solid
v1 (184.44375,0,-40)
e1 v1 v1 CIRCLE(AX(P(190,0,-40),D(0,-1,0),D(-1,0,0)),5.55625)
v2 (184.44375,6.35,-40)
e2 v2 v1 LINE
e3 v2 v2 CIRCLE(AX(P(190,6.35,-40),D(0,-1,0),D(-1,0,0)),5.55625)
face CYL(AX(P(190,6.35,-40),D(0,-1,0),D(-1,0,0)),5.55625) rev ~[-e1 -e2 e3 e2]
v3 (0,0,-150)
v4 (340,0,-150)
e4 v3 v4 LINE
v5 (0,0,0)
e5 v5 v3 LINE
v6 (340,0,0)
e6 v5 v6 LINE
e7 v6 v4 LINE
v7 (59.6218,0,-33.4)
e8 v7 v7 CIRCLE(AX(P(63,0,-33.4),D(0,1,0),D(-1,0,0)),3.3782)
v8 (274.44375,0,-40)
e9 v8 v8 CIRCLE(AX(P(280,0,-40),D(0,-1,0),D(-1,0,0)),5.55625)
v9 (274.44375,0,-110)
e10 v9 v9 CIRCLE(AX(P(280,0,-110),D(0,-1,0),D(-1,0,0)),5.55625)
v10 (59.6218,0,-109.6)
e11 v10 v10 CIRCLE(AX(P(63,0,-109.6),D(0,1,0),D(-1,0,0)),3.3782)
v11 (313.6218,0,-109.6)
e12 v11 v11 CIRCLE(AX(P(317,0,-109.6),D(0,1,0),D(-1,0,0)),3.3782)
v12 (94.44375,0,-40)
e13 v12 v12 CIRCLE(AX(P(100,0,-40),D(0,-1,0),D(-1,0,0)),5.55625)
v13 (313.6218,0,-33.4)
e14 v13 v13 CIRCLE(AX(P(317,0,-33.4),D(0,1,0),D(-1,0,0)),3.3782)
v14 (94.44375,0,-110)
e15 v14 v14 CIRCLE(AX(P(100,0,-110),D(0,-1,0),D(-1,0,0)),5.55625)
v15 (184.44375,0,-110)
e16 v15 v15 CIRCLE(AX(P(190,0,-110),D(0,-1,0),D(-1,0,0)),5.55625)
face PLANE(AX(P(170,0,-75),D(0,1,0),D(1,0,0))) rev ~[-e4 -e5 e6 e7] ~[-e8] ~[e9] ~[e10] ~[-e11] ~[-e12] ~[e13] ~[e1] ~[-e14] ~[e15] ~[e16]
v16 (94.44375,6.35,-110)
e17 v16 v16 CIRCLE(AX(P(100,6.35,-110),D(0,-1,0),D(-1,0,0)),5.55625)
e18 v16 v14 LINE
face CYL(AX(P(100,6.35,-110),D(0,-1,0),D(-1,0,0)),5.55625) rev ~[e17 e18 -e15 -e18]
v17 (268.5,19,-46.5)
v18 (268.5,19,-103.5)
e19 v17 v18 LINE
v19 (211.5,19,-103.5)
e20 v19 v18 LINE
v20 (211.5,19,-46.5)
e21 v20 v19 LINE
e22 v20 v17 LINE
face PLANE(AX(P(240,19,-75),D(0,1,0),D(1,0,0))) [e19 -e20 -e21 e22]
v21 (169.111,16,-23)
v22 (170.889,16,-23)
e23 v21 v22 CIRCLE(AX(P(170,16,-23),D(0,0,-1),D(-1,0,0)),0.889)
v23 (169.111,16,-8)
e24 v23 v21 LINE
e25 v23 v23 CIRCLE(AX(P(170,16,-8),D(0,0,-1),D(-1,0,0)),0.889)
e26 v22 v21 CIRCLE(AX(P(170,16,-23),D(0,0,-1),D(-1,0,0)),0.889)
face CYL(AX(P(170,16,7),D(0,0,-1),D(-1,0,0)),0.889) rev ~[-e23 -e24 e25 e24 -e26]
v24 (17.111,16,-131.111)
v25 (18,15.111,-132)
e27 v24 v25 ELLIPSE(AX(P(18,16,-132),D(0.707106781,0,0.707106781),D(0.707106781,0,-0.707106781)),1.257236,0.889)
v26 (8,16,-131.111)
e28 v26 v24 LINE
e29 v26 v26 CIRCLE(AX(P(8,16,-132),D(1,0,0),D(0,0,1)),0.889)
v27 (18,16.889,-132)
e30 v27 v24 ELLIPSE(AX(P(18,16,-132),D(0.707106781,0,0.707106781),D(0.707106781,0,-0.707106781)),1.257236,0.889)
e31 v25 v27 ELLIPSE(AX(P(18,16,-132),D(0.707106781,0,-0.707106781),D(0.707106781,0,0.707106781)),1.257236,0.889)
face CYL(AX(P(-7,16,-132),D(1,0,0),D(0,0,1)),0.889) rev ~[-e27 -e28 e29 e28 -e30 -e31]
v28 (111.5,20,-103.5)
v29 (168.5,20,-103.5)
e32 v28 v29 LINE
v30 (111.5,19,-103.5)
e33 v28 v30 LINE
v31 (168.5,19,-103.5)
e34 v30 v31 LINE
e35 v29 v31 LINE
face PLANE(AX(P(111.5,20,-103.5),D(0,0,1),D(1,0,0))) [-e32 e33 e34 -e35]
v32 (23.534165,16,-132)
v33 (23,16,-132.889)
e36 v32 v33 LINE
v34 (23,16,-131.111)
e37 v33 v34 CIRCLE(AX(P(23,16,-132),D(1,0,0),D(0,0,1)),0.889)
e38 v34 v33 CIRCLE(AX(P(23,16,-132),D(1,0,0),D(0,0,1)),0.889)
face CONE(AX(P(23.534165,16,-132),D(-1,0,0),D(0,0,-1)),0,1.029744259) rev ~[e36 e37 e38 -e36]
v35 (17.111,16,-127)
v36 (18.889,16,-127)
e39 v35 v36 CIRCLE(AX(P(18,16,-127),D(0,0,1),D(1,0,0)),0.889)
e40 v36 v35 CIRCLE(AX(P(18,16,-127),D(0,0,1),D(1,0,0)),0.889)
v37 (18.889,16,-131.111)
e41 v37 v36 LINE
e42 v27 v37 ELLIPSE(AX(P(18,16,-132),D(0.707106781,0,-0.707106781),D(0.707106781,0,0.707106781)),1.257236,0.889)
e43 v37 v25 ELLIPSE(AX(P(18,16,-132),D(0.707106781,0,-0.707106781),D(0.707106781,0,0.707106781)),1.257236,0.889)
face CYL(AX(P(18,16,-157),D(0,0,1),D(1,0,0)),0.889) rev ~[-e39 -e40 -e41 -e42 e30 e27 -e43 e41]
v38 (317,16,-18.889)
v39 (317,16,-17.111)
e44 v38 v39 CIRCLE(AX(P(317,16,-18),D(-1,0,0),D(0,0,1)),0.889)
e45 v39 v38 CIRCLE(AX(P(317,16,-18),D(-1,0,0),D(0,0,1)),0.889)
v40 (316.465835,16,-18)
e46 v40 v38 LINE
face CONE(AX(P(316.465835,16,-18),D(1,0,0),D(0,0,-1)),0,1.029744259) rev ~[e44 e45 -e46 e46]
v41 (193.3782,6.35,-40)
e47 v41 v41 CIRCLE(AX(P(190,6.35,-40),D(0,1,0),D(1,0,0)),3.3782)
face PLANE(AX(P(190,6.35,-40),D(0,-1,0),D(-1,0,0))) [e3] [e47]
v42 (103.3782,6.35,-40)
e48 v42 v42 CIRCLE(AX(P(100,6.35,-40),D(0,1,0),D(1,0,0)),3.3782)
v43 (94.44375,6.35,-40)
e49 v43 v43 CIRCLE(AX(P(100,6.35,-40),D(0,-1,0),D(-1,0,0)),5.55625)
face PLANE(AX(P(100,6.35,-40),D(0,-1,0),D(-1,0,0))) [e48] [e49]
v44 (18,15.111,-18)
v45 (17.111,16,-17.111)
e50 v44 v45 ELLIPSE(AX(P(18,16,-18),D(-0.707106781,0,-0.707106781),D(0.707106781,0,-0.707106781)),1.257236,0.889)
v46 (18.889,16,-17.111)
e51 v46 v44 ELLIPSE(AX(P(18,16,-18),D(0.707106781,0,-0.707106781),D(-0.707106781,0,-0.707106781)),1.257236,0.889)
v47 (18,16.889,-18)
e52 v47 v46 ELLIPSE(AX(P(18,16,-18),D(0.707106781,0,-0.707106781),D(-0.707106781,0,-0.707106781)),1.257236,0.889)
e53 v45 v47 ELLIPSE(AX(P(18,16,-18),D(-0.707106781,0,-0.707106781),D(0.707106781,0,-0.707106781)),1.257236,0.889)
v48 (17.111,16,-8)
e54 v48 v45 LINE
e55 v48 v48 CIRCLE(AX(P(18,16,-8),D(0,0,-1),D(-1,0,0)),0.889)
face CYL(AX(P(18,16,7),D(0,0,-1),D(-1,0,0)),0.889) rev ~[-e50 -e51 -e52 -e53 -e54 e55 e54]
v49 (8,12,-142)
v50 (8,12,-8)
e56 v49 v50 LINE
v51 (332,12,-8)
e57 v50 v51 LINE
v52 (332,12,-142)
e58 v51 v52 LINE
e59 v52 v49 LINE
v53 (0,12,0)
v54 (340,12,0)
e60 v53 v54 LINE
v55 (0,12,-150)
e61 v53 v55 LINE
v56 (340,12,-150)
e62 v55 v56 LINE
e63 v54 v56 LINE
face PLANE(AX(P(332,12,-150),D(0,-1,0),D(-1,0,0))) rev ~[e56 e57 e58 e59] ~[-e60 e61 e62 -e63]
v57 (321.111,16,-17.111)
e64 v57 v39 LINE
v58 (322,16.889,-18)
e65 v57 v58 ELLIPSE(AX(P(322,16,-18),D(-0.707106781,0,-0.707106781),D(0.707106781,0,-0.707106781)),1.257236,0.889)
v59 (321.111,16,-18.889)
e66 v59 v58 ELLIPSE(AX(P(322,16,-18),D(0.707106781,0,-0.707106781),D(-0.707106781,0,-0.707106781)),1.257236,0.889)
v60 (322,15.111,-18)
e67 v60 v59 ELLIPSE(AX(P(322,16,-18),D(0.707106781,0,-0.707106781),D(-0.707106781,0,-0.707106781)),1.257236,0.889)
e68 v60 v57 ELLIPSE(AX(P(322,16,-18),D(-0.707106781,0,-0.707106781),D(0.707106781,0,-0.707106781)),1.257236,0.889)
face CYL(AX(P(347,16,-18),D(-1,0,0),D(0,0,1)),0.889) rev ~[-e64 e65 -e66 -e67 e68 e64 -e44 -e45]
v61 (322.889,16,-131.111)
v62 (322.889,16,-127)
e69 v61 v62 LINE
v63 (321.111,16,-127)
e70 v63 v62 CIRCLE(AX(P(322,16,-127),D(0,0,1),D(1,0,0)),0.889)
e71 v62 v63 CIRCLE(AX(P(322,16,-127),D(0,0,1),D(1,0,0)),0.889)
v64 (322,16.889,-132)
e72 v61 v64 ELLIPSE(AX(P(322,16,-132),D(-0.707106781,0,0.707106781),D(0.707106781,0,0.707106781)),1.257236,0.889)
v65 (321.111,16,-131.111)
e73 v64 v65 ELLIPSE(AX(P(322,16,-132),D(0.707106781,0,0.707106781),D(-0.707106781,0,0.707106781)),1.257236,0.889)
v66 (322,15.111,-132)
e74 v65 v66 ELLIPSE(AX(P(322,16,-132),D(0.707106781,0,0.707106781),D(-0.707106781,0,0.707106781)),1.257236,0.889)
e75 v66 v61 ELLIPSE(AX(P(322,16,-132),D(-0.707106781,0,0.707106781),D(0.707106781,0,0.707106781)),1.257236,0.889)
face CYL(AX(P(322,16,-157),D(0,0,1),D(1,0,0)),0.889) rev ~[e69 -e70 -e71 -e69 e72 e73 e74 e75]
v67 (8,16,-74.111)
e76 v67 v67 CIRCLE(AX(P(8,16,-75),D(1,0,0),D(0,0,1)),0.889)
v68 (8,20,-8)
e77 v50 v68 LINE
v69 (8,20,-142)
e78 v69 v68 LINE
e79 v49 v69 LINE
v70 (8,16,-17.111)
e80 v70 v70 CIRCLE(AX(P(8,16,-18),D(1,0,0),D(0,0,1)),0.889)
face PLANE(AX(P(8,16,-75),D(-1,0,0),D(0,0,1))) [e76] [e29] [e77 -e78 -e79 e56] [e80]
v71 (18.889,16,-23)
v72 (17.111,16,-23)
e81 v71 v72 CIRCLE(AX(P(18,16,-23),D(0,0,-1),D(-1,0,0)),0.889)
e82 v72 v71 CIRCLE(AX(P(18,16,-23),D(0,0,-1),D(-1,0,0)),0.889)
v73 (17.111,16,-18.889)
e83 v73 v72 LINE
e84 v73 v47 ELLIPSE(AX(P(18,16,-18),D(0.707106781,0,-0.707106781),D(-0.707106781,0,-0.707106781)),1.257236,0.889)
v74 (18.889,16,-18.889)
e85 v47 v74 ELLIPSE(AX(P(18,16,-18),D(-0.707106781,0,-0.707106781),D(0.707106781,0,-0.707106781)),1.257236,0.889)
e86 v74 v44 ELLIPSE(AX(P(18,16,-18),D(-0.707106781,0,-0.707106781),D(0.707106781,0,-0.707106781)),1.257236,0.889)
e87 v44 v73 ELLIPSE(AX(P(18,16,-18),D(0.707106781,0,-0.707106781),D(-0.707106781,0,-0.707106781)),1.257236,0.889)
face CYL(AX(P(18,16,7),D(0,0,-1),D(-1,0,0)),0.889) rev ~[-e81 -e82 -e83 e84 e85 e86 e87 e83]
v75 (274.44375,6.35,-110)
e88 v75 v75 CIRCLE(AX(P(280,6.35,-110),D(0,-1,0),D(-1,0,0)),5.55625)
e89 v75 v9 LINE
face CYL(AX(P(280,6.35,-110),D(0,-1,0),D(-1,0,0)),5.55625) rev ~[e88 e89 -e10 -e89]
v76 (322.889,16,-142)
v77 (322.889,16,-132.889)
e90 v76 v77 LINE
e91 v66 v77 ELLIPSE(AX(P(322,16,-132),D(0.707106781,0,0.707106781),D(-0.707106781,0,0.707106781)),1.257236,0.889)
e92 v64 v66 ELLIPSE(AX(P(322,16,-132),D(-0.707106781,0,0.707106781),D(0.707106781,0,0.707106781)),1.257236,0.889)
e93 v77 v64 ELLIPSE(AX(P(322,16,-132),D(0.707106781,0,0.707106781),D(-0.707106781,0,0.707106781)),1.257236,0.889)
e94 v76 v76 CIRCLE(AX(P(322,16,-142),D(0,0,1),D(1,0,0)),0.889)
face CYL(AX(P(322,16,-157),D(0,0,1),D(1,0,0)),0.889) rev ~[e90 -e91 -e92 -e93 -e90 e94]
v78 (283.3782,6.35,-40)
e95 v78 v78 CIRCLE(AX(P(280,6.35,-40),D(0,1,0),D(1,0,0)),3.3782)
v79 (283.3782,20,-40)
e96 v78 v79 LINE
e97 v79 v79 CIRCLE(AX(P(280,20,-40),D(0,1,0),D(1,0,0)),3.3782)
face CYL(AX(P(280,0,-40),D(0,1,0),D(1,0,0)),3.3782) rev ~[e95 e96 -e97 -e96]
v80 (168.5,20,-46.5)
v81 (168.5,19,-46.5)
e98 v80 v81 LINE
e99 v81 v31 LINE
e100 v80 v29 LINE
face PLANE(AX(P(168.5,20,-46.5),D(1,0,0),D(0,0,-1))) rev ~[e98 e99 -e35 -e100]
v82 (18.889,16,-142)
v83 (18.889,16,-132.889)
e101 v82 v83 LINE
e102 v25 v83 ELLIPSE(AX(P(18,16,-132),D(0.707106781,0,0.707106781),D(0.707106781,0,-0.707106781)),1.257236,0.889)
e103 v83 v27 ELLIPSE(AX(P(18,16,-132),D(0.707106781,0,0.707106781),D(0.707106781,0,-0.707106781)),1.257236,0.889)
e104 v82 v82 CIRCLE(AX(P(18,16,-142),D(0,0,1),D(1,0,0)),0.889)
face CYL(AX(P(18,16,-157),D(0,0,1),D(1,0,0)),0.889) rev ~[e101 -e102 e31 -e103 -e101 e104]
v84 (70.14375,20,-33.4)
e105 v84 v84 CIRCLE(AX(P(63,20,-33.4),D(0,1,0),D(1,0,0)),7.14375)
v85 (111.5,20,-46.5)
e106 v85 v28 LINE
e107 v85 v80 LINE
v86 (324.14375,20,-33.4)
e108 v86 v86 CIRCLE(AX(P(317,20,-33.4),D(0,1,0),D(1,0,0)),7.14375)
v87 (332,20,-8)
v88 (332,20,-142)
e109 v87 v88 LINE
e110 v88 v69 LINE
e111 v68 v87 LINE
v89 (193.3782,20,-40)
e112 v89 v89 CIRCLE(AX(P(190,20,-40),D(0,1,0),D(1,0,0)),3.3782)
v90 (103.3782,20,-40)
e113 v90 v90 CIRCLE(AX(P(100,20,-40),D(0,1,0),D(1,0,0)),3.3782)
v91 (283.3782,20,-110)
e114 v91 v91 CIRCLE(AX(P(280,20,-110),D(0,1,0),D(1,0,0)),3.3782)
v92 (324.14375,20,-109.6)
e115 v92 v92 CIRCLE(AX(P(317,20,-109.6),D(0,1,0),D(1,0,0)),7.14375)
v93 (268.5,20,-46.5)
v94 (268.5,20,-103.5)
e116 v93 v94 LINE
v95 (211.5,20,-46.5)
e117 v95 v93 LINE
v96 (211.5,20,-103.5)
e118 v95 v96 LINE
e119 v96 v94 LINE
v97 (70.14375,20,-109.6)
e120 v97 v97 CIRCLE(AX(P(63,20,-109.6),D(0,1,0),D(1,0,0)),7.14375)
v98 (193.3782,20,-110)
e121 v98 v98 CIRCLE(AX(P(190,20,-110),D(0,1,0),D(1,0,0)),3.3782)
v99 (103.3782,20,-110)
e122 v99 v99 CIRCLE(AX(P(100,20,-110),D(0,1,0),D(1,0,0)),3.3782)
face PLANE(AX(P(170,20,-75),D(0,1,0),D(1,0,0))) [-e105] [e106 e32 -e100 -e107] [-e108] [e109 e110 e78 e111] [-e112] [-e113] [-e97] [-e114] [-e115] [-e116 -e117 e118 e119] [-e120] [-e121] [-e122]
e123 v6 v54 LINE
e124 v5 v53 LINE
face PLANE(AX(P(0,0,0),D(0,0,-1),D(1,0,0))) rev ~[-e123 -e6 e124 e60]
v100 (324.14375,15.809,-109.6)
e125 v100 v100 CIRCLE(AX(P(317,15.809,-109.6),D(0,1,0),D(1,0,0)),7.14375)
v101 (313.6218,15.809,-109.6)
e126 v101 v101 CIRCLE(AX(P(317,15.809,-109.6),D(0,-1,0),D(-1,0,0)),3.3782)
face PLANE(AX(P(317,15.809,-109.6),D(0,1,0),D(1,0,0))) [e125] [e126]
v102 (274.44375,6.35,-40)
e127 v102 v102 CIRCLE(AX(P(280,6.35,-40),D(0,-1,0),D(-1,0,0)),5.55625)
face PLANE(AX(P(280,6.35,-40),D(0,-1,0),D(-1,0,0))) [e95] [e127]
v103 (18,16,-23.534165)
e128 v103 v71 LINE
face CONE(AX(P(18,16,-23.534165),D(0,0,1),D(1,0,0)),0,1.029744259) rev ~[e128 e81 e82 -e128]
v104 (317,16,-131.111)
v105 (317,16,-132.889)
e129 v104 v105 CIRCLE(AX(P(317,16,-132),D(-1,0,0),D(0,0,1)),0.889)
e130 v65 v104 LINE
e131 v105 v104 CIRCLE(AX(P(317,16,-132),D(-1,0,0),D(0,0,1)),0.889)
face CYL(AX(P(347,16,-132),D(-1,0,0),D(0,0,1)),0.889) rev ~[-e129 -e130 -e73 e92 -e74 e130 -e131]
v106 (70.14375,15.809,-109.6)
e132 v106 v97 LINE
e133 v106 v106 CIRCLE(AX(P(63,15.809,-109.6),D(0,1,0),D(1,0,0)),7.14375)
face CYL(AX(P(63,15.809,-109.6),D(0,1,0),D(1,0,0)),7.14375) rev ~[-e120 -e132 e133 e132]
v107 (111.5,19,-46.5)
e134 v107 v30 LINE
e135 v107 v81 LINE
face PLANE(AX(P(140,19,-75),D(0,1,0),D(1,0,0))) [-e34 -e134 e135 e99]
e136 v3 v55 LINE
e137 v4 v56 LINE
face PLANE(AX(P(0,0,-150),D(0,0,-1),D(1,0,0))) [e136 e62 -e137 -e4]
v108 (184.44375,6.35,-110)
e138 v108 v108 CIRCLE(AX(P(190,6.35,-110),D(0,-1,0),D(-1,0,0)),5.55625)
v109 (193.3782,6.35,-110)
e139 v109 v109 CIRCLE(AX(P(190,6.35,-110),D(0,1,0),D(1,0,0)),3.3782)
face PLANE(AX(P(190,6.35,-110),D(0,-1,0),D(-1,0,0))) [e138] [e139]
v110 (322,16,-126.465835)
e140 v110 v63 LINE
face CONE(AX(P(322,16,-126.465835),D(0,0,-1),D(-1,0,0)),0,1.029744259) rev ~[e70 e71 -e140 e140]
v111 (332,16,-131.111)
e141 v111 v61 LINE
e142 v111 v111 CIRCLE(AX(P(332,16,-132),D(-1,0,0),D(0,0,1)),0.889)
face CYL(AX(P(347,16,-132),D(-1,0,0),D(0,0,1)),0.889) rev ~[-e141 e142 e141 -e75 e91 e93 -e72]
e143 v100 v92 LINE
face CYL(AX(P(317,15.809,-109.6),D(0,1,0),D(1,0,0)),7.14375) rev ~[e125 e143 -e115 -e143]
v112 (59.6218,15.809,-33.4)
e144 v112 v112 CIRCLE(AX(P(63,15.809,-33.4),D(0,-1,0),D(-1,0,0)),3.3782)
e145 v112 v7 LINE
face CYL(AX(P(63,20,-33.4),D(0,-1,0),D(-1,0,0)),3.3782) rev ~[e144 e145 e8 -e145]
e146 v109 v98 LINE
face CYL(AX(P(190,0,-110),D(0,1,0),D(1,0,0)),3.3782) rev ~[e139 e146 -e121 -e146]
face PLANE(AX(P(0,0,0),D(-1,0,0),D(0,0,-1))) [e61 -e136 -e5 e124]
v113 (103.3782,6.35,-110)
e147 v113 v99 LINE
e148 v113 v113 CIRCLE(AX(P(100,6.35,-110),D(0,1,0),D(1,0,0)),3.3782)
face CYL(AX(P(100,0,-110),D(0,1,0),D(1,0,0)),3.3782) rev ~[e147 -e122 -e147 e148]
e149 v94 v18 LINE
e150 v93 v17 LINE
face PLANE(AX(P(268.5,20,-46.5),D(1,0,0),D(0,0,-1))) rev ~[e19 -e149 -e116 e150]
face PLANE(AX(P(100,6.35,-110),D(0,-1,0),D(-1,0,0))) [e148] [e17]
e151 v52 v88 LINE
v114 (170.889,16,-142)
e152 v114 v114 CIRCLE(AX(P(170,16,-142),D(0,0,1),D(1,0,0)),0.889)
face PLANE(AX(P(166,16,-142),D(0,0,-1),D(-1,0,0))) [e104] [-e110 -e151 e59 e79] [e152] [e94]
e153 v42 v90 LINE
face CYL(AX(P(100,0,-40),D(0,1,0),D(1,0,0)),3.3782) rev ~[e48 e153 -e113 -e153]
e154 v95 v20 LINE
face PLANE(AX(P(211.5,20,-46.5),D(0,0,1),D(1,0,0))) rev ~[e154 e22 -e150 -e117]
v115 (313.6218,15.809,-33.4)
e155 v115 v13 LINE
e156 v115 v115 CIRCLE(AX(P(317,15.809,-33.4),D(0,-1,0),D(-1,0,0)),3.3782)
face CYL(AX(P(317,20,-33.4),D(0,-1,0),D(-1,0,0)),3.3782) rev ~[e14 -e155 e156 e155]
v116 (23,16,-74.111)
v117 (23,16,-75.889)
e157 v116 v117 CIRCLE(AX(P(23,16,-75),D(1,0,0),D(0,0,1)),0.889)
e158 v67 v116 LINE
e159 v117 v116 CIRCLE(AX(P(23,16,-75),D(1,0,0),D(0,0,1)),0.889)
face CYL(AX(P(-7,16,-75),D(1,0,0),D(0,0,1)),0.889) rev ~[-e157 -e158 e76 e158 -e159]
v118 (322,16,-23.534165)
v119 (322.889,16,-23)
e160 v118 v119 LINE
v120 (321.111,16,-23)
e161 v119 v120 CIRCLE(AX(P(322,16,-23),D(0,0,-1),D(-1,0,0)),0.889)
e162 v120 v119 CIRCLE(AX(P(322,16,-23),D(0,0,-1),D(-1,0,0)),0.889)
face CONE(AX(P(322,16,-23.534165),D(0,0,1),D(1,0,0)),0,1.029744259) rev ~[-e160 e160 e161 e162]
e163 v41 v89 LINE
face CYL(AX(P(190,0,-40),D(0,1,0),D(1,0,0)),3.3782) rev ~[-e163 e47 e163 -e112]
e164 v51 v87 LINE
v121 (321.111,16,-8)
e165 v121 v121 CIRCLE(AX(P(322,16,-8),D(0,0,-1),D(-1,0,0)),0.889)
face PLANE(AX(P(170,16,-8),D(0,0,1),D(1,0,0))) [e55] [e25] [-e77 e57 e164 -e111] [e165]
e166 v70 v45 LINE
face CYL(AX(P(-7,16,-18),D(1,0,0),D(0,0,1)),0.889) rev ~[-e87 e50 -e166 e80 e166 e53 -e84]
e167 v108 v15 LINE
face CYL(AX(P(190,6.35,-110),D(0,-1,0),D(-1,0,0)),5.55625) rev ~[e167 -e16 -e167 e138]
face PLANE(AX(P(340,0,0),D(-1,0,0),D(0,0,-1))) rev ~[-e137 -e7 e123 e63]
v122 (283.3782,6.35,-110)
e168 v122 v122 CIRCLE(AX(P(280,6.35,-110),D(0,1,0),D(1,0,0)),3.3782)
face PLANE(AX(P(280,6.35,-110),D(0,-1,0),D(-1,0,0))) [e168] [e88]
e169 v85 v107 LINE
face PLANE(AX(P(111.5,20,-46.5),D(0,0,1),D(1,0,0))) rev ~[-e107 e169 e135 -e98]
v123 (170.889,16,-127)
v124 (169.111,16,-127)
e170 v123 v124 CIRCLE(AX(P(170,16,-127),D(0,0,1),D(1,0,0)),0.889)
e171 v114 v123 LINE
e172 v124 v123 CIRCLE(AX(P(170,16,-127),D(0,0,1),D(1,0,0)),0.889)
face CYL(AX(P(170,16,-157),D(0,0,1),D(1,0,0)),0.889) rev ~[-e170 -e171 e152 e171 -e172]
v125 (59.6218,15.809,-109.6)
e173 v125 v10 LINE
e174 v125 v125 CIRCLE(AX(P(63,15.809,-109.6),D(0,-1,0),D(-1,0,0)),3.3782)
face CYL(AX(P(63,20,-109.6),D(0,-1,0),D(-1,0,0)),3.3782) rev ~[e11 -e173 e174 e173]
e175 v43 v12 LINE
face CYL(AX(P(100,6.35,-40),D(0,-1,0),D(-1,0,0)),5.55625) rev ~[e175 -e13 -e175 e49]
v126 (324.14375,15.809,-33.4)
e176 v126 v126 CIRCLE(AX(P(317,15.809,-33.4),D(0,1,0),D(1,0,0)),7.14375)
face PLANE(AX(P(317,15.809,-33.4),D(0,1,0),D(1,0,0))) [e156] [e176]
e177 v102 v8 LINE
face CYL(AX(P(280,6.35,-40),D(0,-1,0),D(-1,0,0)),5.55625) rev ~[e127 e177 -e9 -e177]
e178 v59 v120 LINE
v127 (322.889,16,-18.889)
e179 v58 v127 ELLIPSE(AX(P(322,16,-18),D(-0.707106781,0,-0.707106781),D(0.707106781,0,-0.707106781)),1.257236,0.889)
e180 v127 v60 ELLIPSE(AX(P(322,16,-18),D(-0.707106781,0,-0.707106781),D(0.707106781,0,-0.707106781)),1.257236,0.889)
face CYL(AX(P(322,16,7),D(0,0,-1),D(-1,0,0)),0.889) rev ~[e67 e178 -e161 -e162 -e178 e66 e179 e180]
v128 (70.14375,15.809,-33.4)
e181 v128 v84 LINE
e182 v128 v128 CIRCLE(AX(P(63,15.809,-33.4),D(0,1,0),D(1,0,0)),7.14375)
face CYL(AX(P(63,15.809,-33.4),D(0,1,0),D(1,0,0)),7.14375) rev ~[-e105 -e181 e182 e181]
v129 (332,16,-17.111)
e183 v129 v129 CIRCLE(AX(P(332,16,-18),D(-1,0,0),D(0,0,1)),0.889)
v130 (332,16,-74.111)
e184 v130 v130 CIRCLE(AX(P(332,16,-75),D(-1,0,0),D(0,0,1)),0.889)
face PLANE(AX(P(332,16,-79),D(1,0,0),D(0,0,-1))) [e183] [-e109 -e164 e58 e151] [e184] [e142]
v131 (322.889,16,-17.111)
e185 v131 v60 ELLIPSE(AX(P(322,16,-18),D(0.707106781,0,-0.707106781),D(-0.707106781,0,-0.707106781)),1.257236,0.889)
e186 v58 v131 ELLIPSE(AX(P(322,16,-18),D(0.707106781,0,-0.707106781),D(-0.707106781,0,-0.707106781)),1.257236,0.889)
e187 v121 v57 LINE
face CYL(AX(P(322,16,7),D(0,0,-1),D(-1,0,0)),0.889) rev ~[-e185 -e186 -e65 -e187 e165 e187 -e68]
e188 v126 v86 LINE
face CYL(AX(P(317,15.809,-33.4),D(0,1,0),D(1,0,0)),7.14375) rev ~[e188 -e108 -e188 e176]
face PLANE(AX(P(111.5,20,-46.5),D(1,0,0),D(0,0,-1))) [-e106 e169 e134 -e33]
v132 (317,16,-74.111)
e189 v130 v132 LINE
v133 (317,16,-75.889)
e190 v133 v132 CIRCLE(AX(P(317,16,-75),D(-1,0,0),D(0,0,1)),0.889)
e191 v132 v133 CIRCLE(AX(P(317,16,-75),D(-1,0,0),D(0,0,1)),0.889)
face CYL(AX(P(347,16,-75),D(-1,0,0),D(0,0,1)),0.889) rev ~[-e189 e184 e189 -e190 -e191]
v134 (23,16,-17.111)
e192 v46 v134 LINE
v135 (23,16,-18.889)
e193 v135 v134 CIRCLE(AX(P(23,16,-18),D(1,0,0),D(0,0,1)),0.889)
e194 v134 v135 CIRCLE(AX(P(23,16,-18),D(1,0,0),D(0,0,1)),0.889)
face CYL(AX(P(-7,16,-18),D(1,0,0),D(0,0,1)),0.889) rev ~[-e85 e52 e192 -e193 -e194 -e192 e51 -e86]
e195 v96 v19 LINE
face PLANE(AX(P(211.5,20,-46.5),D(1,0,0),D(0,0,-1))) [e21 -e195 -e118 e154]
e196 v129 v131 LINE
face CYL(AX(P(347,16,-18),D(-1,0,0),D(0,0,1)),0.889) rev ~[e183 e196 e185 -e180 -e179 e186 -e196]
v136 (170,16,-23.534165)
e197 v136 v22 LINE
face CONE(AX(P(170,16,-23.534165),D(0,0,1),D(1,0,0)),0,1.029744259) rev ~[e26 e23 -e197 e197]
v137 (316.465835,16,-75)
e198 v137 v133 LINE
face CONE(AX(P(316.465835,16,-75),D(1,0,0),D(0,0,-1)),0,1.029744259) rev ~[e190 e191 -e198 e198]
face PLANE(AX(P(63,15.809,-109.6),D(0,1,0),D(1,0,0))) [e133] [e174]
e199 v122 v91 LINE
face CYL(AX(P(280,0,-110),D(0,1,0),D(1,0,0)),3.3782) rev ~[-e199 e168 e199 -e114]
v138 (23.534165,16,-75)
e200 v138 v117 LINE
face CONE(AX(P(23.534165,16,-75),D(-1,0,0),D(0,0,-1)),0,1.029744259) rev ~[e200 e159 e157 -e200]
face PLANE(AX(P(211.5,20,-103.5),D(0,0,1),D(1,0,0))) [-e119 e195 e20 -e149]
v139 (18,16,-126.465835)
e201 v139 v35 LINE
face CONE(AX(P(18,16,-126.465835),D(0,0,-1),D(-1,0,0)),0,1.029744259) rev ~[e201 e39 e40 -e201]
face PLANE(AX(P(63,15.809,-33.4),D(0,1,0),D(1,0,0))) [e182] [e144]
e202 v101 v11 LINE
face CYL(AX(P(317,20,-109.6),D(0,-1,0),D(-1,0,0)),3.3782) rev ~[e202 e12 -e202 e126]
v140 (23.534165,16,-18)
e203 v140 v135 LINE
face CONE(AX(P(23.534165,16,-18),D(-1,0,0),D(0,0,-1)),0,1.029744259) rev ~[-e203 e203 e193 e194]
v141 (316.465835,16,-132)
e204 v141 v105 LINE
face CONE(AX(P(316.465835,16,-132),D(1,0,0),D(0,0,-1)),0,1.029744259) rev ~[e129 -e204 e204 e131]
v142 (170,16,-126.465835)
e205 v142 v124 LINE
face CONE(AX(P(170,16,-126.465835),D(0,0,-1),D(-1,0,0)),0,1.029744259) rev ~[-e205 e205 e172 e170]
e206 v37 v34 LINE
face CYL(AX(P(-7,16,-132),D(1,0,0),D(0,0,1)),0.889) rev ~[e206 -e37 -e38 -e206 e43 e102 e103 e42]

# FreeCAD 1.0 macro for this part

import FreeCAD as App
import Part
import Sketcher
Q = App.Units.Quantity

doc = App.newDocument("Part")
body = doc.addObject("PartDesign::Body", "Body")

# Sketch on XZ plane
sketch1 = body.newObject("Sketcher::SketchObject", "Sketch")
sketch1.AttachmentSupport = (doc.getObject("XZ_Plane"), [""])
sketch1.MapMode = "FlatFace"
sketch1.addGeometry(Part.LineSegment(App.Vector(0, -150, 0), App.Vector(0, 0, 0)), False)
sketch1.addGeometry(Part.LineSegment(App.Vector(0, 0, 0), App.Vector(340, 0, 0)), False)
sketch1.addGeometry(Part.LineSegment(App.Vector(340, 0, 0), App.Vector(340, -150, 0)), False)
sketch1.addGeometry(Part.LineSegment(App.Vector(340, -150, 0), App.Vector(0, -150, 0)), False)
sketch1.addConstraint(Sketcher.Constraint("Coincident", 0, 2, 1, 1))
sketch1.addConstraint(Sketcher.Constraint("Coincident", 1, 2, 2, 1))
sketch1.addConstraint(Sketcher.Constraint("Coincident", 2, 2, 3, 1))
sketch1.addConstraint(Sketcher.Constraint("Coincident", 3, 2, 0, 1))
sketch1.addConstraint(Sketcher.Constraint("Vertical", 0))
sketch1.addConstraint(Sketcher.Constraint("Horizontal", 1))
sketch1.addConstraint(Sketcher.Constraint("Vertical", 2))
sketch1.addConstraint(Sketcher.Constraint("Horizontal", 3))
sketch1.addConstraint(Sketcher.Constraint("Coincident", 0, 2, -1, 1))
sketch1.addConstraint(Sketcher.Constraint("DistanceX", 1, 1, 1, 2, Q("340 mm")))
sketch1.addConstraint(Sketcher.Constraint("DistanceY", 0, 1, 0, 2, Q("150 mm")))
pad1 = body.newObject("PartDesign::Pad", "Pad")
pad1.Profile = sketch1
pad1.Length = 20
pad1.Reversed = True

# Sketch on XZ plane
sketch2 = body.newObject("Sketcher::SketchObject", "Sketch001")
sketch2.AttachmentSupport = (doc.getObject("XZ_Plane"), [""])
sketch2.MapMode = "FlatFace"
sketch2.addGeometry(Part.Circle(App.Vector(100, -40, 0), App.Vector(0, 0, 1), 3.3782), False)
sketch2.addGeometry(Part.Circle(App.Vector(190, -40, 0), App.Vector(0, 0, 1), 3.3782), False)
sketch2.addGeometry(Part.Circle(App.Vector(280, -40, 0), App.Vector(0, 0, 1), 3.3782), False)
sketch2.addGeometry(Part.Circle(App.Vector(280, -110, 0), App.Vector(0, 0, 1), 3.3782), False)
sketch2.addGeometry(Part.Circle(App.Vector(190, -110, 0), App.Vector(0, 0, 1), 3.3782), False)
sketch2.addGeometry(Part.Circle(App.Vector(100, -110, 0), App.Vector(0, 0, 1), 3.3782), False)
sketch2.addConstraint(Sketcher.Constraint("Equal", 0, 1))
sketch2.addConstraint(Sketcher.Constraint("Equal", 1, 2))
sketch2.addConstraint(Sketcher.Constraint("Equal", 2, 3))
sketch2.addConstraint(Sketcher.Constraint("Equal", 3, 4))
sketch2.addConstraint(Sketcher.Constraint("Equal", 4, 5))
sketch2.addConstraint(Sketcher.Constraint("Horizontal", 0, 3, 1, 3))
sketch2.addConstraint(Sketcher.Constraint("Horizontal", 1, 3, 2, 3))
sketch2.addConstraint(Sketcher.Constraint("Horizontal", 3, 3, 4, 3))
sketch2.addConstraint(Sketcher.Constraint("Horizontal", 4, 3, 5, 3))
sketch2.addConstraint(Sketcher.Constraint("Vertical", 2, 3, 3, 3))
sketch2.addConstraint(Sketcher.Constraint("Vertical", 1, 3, 4, 3))
sketch2.addConstraint(Sketcher.Constraint("Vertical", 0, 3, 5, 3))
sketch2.addConstraint(Sketcher.Constraint("DistanceX", -1, 1, 0, 3, Q("100 mm")))
sketch2.addConstraint(Sketcher.Constraint("DistanceY", 0, 3, -1, 1, Q("40 mm")))
sketch2.addConstraint(Sketcher.Constraint("DistanceX", -1, 1, 1, 3, Q("190 mm")))
sketch2.addConstraint(Sketcher.Constraint("DistanceX", -1, 1, 2, 3, Q("280 mm")))
sketch2.addConstraint(Sketcher.Constraint("DistanceY", 3, 3, -1, 1, Q("110 mm")))
sketch2.addConstraint(Sketcher.Constraint("Diameter", 0, Q("6.7564 mm")))
doc.recompute()
hole = body.newObject("PartDesign::Hole", "Hole")
hole.Profile = sketch2
hole.ThreadType = "None"
hole.Diameter = 6.7564
hole.DepthType = "ThroughAll"
hole.HoleCutType = "Counterbore"
hole.HoleCutDiameter = 11.1125
hole.HoleCutDepth = 6.35

# Sketch on XZ plane
sketch3 = body.newObject("Sketcher::SketchObject", "Sketch002")
sketch3.AttachmentSupport = (doc.getObject("XZ_Plane"), [""])
sketch3.MapMode = "FlatFace"
sketch3.AttachmentOffset = App.Placement(App.Vector(0, 0, -20), App.Rotation())
sketch3.addGeometry(Part.LineSegment(App.Vector(111.5, -103.5, 0), App.Vector(111.5, -46.5, 0)), False)
sketch3.addGeometry(Part.LineSegment(App.Vector(111.5, -46.5, 0), App.Vector(168.5, -46.5, 0)), False)
sketch3.addGeometry(Part.LineSegment(App.Vector(168.5, -46.5, 0), App.Vector(168.5, -103.5, 0)), False)
sketch3.addGeometry(Part.LineSegment(App.Vector(168.5, -103.5, 0), App.Vector(111.5, -103.5, 0)), False)
sketch3.addGeometry(Part.LineSegment(App.Vector(211.5, -103.5, 0), App.Vector(211.5, -46.5, 0)), False)
sketch3.addGeometry(Part.LineSegment(App.Vector(211.5, -46.5, 0), App.Vector(268.5, -46.5, 0)), False)
sketch3.addGeometry(Part.LineSegment(App.Vector(268.5, -46.5, 0), App.Vector(268.5, -103.5, 0)), False)
sketch3.addGeometry(Part.LineSegment(App.Vector(268.5, -103.5, 0), App.Vector(211.5, -103.5, 0)), False)
sketch3.addConstraint(Sketcher.Constraint("Coincident", 0, 2, 1, 1))
sketch3.addConstraint(Sketcher.Constraint("Coincident", 1, 2, 2, 1))
sketch3.addConstraint(Sketcher.Constraint("Coincident", 2, 2, 3, 1))
sketch3.addConstraint(Sketcher.Constraint("Coincident", 3, 2, 0, 1))
sketch3.addConstraint(Sketcher.Constraint("Coincident", 4, 2, 5, 1))
sketch3.addConstraint(Sketcher.Constraint("Coincident", 5, 2, 6, 1))
sketch3.addConstraint(Sketcher.Constraint("Coincident", 6, 2, 7, 1))
sketch3.addConstraint(Sketcher.Constraint("Coincident", 7, 2, 4, 1))
sketch3.addConstraint(Sketcher.Constraint("Vertical", 0))
sketch3.addConstraint(Sketcher.Constraint("Horizontal", 1))
sketch3.addConstraint(Sketcher.Constraint("Vertical", 2))
sketch3.addConstraint(Sketcher.Constraint("Horizontal", 3))
sketch3.addConstraint(Sketcher.Constraint("Vertical", 4))
sketch3.addConstraint(Sketcher.Constraint("Horizontal", 5))
sketch3.addConstraint(Sketcher.Constraint("Vertical", 6))
sketch3.addConstraint(Sketcher.Constraint("Horizontal", 7))
sketch3.addConstraint(Sketcher.Constraint("Horizontal", 1, 2, 4, 2))
sketch3.addConstraint(Sketcher.Constraint("Horizontal", 3, 2, 6, 2))
sketch3.addConstraint(Sketcher.Constraint("Equal", 3, 5))
sketch3.addConstraint(Sketcher.Constraint("Equal", 7, 0))
sketch3.addConstraint(Sketcher.Constraint("DistanceX", 1, 1, 1, 2, Q("57 mm")))
sketch3.addConstraint(Sketcher.Constraint("DistanceX", 1, 2, 4, 2, Q("43 mm")))
sketch3.addConstraint(Sketcher.Constraint("DistanceX", -1, 1, 0, 2, Q("111.5 mm")))
sketch3.addConstraint(Sketcher.Constraint("DistanceY", 0, 2, -1, 1, Q("46.5 mm")))
pocket1 = body.newObject("PartDesign::Pocket", "Pocket")
pocket1.Profile = sketch3
pocket1.Length = 1
pocket1.Reversed = True

# Sketch on XY plane
sketch4 = body.newObject("Sketcher::SketchObject", "Sketch003")
sketch4.AttachmentSupport = (doc.getObject("XY_Plane"), [""])
sketch4.MapMode = "FlatFace"
sketch4.addGeometry(Part.LineSegment(App.Vector(0, 20, 0), App.Vector(0, 12, 0)), False)
sketch4.addGeometry(Part.LineSegment(App.Vector(0, 12, 0), App.Vector(340, 12, 0)), False)
sketch4.addGeometry(Part.LineSegment(App.Vector(340, 12, 0), App.Vector(340, 20, 0)), False)
sketch4.addGeometry(Part.LineSegment(App.Vector(340, 20, 0), App.Vector(0, 20, 0)), False)
sketch4.addConstraint(Sketcher.Constraint("Coincident", 0, 2, 1, 1))
sketch4.addConstraint(Sketcher.Constraint("Coincident", 1, 2, 2, 1))
sketch4.addConstraint(Sketcher.Constraint("Coincident", 2, 2, 3, 1))
sketch4.addConstraint(Sketcher.Constraint("Coincident", 3, 2, 0, 1))
sketch4.addConstraint(Sketcher.Constraint("Vertical", 0))
sketch4.addConstraint(Sketcher.Constraint("Horizontal", 1))
sketch4.addConstraint(Sketcher.Constraint("Vertical", 2))
sketch4.addConstraint(Sketcher.Constraint("Horizontal", 3))
sketch4.addConstraint(Sketcher.Constraint("PointOnObject", 0, 2, -2))
sketch4.addConstraint(Sketcher.Constraint("DistanceX", 1, 1, 1, 2, Q("340 mm")))
sketch4.addConstraint(Sketcher.Constraint("DistanceY", 0, 2, 0, 1, Q("8 mm")))
sketch4.addConstraint(Sketcher.Constraint("DistanceY", -1, 1, 0, 2, Q("12 mm")))
pocket2 = body.newObject("PartDesign::Pocket", "Pocket001")
pocket2.Profile = sketch4
pocket2.Length = 8

# Sketch on YZ plane
sketch5 = body.newObject("Sketcher::SketchObject", "Sketch004")
sketch5.AttachmentSupport = (doc.getObject("YZ_Plane"), [""])
sketch5.MapMode = "FlatFace"
sketch5.AttachmentOffset = App.Placement(App.Vector(0, 0, 340), App.Rotation())
sketch5.addGeometry(Part.LineSegment(App.Vector(20, -8, 0), App.Vector(12, -8, 0)), False)
sketch5.addGeometry(Part.LineSegment(App.Vector(12, -8, 0), App.Vector(12, -150, 0)), False)
sketch5.addGeometry(Part.LineSegment(App.Vector(12, -150, 0), App.Vector(20, -150, 0)), False)
sketch5.addGeometry(Part.LineSegment(App.Vector(20, -150, 0), App.Vector(20, -8, 0)), False)
sketch5.addConstraint(Sketcher.Constraint("Coincident", 0, 2, 1, 1))
sketch5.addConstraint(Sketcher.Constraint("Coincident", 1, 2, 2, 1))
sketch5.addConstraint(Sketcher.Constraint("Coincident", 2, 2, 3, 1))
sketch5.addConstraint(Sketcher.Constraint("Coincident", 3, 2, 0, 1))
sketch5.addConstraint(Sketcher.Constraint("Horizontal", 0))
sketch5.addConstraint(Sketcher.Constraint("Vertical", 1))
sketch5.addConstraint(Sketcher.Constraint("Horizontal", 2))
sketch5.addConstraint(Sketcher.Constraint("Vertical", 3))
sketch5.addConstraint(Sketcher.Constraint("DistanceX", 0, 2, 0, 1, Q("8 mm")))
sketch5.addConstraint(Sketcher.Constraint("DistanceY", 1, 2, 1, 1, Q("142 mm")))
sketch5.addConstraint(Sketcher.Constraint("DistanceX", -1, 1, 0, 2, Q("12 mm")))
sketch5.addConstraint(Sketcher.Constraint("DistanceY", 0, 2, -1, 1, Q("8 mm")))
pocket3 = body.newObject("PartDesign::Pocket", "Pocket002")
pocket3.Profile = sketch5
pocket3.Length = 8

# Sketch on XY plane
sketch6 = body.newObject("Sketcher::SketchObject", "Sketch005")
sketch6.AttachmentSupport = (doc.getObject("XY_Plane"), [""])
sketch6.MapMode = "FlatFace"
sketch6.AttachmentOffset = App.Placement(App.Vector(0, 0, -150), App.Rotation())
sketch6.addGeometry(Part.LineSegment(App.Vector(332, 20, 0), App.Vector(332, 12, 0)), False)
sketch6.addGeometry(Part.LineSegment(App.Vector(332, 12, 0), App.Vector(0, 12, 0)), False)
sketch6.addGeometry(Part.LineSegment(App.Vector(0, 12, 0), App.Vector(0, 20, 0)), False)
sketch6.addGeometry(Part.LineSegment(App.Vector(0, 20, 0), App.Vector(332, 20, 0)), False)
sketch6.addConstraint(Sketcher.Constraint("Coincident", 0, 2, 1, 1))
sketch6.addConstraint(Sketcher.Constraint("Coincident", 1, 2, 2, 1))
sketch6.addConstraint(Sketcher.Constraint("Coincident", 2, 2, 3, 1))
sketch6.addConstraint(Sketcher.Constraint("Coincident", 3, 2, 0, 1))
sketch6.addConstraint(Sketcher.Constraint("Vertical", 0))
sketch6.addConstraint(Sketcher.Constraint("Horizontal", 1))
sketch6.addConstraint(Sketcher.Constraint("Vertical", 2))
sketch6.addConstraint(Sketcher.Constraint("Horizontal", 3))
sketch6.addConstraint(Sketcher.Constraint("PointOnObject", 1, 2, -2))
sketch6.addConstraint(Sketcher.Constraint("DistanceX", 1, 2, 1, 1, Q("332 mm")))
sketch6.addConstraint(Sketcher.Constraint("DistanceY", 0, 2, 0, 1, Q("8 mm")))
sketch6.addConstraint(Sketcher.Constraint("DistanceY", -1, 1, 0, 2, Q("12 mm")))
pocket4 = body.newObject("PartDesign::Pocket", "Pocket003")
pocket4.Profile = sketch6
pocket4.Length = 8
pocket4.Reversed = True

# Sketch on YZ plane
sketch7 = body.newObject("Sketcher::SketchObject", "Sketch006")
sketch7.AttachmentSupport = (doc.getObject("YZ_Plane"), [""])
sketch7.MapMode = "FlatFace"
sketch7.addGeometry(Part.LineSegment(App.Vector(20, -142, 0), App.Vector(12, -142, 0)), False)
sketch7.addGeometry(Part.LineSegment(App.Vector(12, -142, 0), App.Vector(12, -8, 0)), False)
sketch7.addGeometry(Part.LineSegment(App.Vector(12, -8, 0), App.Vector(20, -8, 0)), False)
sketch7.addGeometry(Part.LineSegment(App.Vector(20, -8, 0), App.Vector(20, -142, 0)), False)
sketch7.addConstraint(Sketcher.Constraint("Coincident", 0, 2, 1, 1))
sketch7.addConstraint(Sketcher.Constraint("Coincident", 1, 2, 2, 1))
sketch7.addConstraint(Sketcher.Constraint("Coincident", 2, 2, 3, 1))
sketch7.addConstraint(Sketcher.Constraint("Coincident", 3, 2, 0, 1))
sketch7.addConstraint(Sketcher.Constraint("Horizontal", 0))
sketch7.addConstraint(Sketcher.Constraint("Vertical", 1))
sketch7.addConstraint(Sketcher.Constraint("Horizontal", 2))
sketch7.addConstraint(Sketcher.Constraint("Vertical", 3))
sketch7.addConstraint(Sketcher.Constraint("DistanceX", 0, 2, 0, 1, Q("8 mm")))
sketch7.addConstraint(Sketcher.Constraint("DistanceY", 1, 1, 1, 2, Q("134 mm")))
sketch7.addConstraint(Sketcher.Constraint("DistanceX", -1, 1, 0, 2, Q("12 mm")))
sketch7.addConstraint(Sketcher.Constraint("DistanceY", 0, 2, -1, 1, Q("142 mm")))
pocket5 = body.newObject("PartDesign::Pocket", "Pocket004")
pocket5.Profile = sketch7
pocket5.Length = 8
pocket5.Reversed = True

# Sketch on XY plane
sketch8 = body.newObject("Sketcher::SketchObject", "Sketch007")
sketch8.AttachmentSupport = (doc.getObject("XY_Plane"), [""])
sketch8.MapMode = "FlatFace"
sketch8.AttachmentOffset = App.Placement(App.Vector(0, 0, -8), App.Rotation())
sketch8.addGeometry(Part.Circle(App.Vector(18, 16, 0), App.Vector(0, 0, 1), 0.889), False)
sketch8.addGeometry(Part.Circle(App.Vector(322, 16, 0), App.Vector(0, 0, 1), 0.889), False)
sketch8.addGeometry(Part.Circle(App.Vector(170, 16, 0), App.Vector(0, 0, 1), 0.889), False)
sketch8.addConstraint(Sketcher.Constraint("Equal", 0, 1))
sketch8.addConstraint(Sketcher.Constraint("Equal", 1, 2))
sketch8.addConstraint(Sketcher.Constraint("Horizontal", 0, 3, 1, 3))
sketch8.addConstraint(Sketcher.Constraint("Horizontal", 1, 3, 2, 3))
sketch8.addConstraint(Sketcher.Constraint("Diameter", 0, Q("1.778 mm")))
sketch8.addConstraint(Sketcher.Constraint("DistanceX", -1, 1, 0, 3, Q("18 mm")))
sketch8.addConstraint(Sketcher.Constraint("DistanceY", -1, 1, 0, 3, Q("16 mm")))
sketch8.addConstraint(Sketcher.Constraint("DistanceX", -1, 1, 1, 3, Q("322 mm")))
sketch8.addConstraint(Sketcher.Constraint("DistanceX", -1, 1, 2, 3, Q("170 mm")))
doc.recompute()
hole2 = body.newObject("PartDesign::Hole", "Hole001")
hole2.Profile = sketch8
hole2.ThreadType = "None"
hole2.Diameter = 1.778
hole2.DepthType = "Dimension"
hole2.Depth = 15
hole2.DrillPoint = "Angled"
hole2.DrillPointAngle = 118

# Sketch on YZ plane
sketch9 = body.newObject("Sketcher::SketchObject", "Sketch008")
sketch9.AttachmentSupport = (doc.getObject("YZ_Plane"), [""])
sketch9.MapMode = "FlatFace"
sketch9.AttachmentOffset = App.Placement(App.Vector(0, 0, 8), App.Rotation())
sketch9.addGeometry(Part.Circle(App.Vector(16, -132, 0), App.Vector(0, 0, 1), 0.889), False)
sketch9.addGeometry(Part.Circle(App.Vector(16, -18, 0), App.Vector(0, 0, 1), 0.889), False)
sketch9.addGeometry(Part.Circle(App.Vector(16, -75, 0), App.Vector(0, 0, 1), 0.889), False)
sketch9.addConstraint(Sketcher.Constraint("Equal", 0, 1))
sketch9.addConstraint(Sketcher.Constraint("Equal", 1, 2))
sketch9.addConstraint(Sketcher.Constraint("Vertical", 0, 3, 1, 3))
sketch9.addConstraint(Sketcher.Constraint("Vertical", 1, 3, 2, 3))
sketch9.addConstraint(Sketcher.Constraint("Diameter", 0, Q("1.778 mm")))
sketch9.addConstraint(Sketcher.Constraint("DistanceX", -1, 1, 0, 3, Q("16 mm")))
sketch9.addConstraint(Sketcher.Constraint("DistanceY", 0, 3, -1, 1, Q("132 mm")))
sketch9.addConstraint(Sketcher.Constraint("DistanceY", 1, 3, -1, 1, Q("18 mm")))
sketch9.addConstraint(Sketcher.Constraint("DistanceY", 2, 3, -1, 1, Q("75 mm")))
doc.recompute()
hole3 = body.newObject("PartDesign::Hole", "Hole002")
hole3.Profile = sketch9
hole3.ThreadType = "None"
hole3.Diameter = 1.778
hole3.DepthType = "Dimension"
hole3.Depth = 15
hole3.DrillPoint = "Angled"
hole3.DrillPointAngle = 118
hole3.Reversed = True

# Sketch on XY plane
sketch10 = body.newObject("Sketcher::SketchObject", "Sketch009")
sketch10.AttachmentSupport = (doc.getObject("XY_Plane"), [""])
sketch10.MapMode = "FlatFace"
sketch10.AttachmentOffset = App.Placement(App.Vector(0, 0, -142), App.Rotation())
sketch10.addGeometry(Part.Circle(App.Vector(322, 16, 0), App.Vector(0, 0, 1), 0.889), False)
sketch10.addGeometry(Part.Circle(App.Vector(18, 16, 0), App.Vector(0, 0, 1), 0.889), False)
sketch10.addGeometry(Part.Circle(App.Vector(170, 16, 0), App.Vector(0, 0, 1), 0.889), False)
sketch10.addConstraint(Sketcher.Constraint("Equal", 0, 1))
sketch10.addConstraint(Sketcher.Constraint("Equal", 1, 2))
sketch10.addConstraint(Sketcher.Constraint("Horizontal", 0, 3, 1, 3))
sketch10.addConstraint(Sketcher.Constraint("Horizontal", 1, 3, 2, 3))
sketch10.addConstraint(Sketcher.Constraint("Diameter", 0, Q("1.778 mm")))
sketch10.addConstraint(Sketcher.Constraint("DistanceX", -1, 1, 0, 3, Q("322 mm")))
sketch10.addConstraint(Sketcher.Constraint("DistanceY", -1, 1, 0, 3, Q("16 mm")))
sketch10.addConstraint(Sketcher.Constraint("DistanceX", -1, 1, 1, 3, Q("18 mm")))
sketch10.addConstraint(Sketcher.Constraint("DistanceX", -1, 1, 2, 3, Q("170 mm")))
doc.recompute()
hole4 = body.newObject("PartDesign::Hole", "Hole003")
hole4.Profile = sketch10
hole4.ThreadType = "None"
hole4.Diameter = 1.778
hole4.DepthType = "Dimension"
hole4.Depth = 15
hole4.DrillPoint = "Angled"
hole4.DrillPointAngle = 118
hole4.Reversed = True

# Sketch on YZ plane
sketch11 = body.newObject("Sketcher::SketchObject", "Sketch010")
sketch11.AttachmentSupport = (doc.getObject("YZ_Plane"), [""])
sketch11.MapMode = "FlatFace"
sketch11.AttachmentOffset = App.Placement(App.Vector(0, 0, 332), App.Rotation())
sketch11.addGeometry(Part.Circle(App.Vector(16, -18, 0), App.Vector(0, 0, 1), 0.889), False)
sketch11.addGeometry(Part.Circle(App.Vector(16, -132, 0), App.Vector(0, 0, 1), 0.889), False)
sketch11.addGeometry(Part.Circle(App.Vector(16, -75, 0), App.Vector(0, 0, 1), 0.889), False)
sketch11.addConstraint(Sketcher.Constraint("Equal", 0, 1))
sketch11.addConstraint(Sketcher.Constraint("Equal", 1, 2))
sketch11.addConstraint(Sketcher.Constraint("Vertical", 0, 3, 1, 3))
sketch11.addConstraint(Sketcher.Constraint("Vertical", 1, 3, 2, 3))
sketch11.addConstraint(Sketcher.Constraint("Diameter", 0, Q("1.778 mm")))
sketch11.addConstraint(Sketcher.Constraint("DistanceX", -1, 1, 0, 3, Q("16 mm")))
sketch11.addConstraint(Sketcher.Constraint("DistanceY", 0, 3, -1, 1, Q("18 mm")))
sketch11.addConstraint(Sketcher.Constraint("DistanceY", 1, 3, -1, 1, Q("132 mm")))
sketch11.addConstraint(Sketcher.Constraint("DistanceY", 2, 3, -1, 1, Q("75 mm")))
doc.recompute()
hole5 = body.newObject("PartDesign::Hole", "Hole004")
hole5.Profile = sketch11
hole5.ThreadType = "None"
hole5.Diameter = 1.778
hole5.DepthType = "Dimension"
hole5.Depth = 15
hole5.DrillPoint = "Angled"
hole5.DrillPointAngle = 118

# Sketch on XZ plane
sketch12 = body.newObject("Sketcher::SketchObject", "Sketch011")
sketch12.AttachmentSupport = (doc.getObject("XZ_Plane"), [""])
sketch12.MapMode = "FlatFace"
sketch12.AttachmentOffset = App.Placement(App.Vector(0, 0, -20), App.Rotation())
sketch12.addGeometry(Part.Circle(App.Vector(63, -109.6, 0), App.Vector(0, 0, 1), 3.3782), False)
sketch12.addGeometry(Part.Circle(App.Vector(317, -109.6, 0), App.Vector(0, 0, 1), 3.3782), False)
sketch12.addGeometry(Part.Circle(App.Vector(317, -33.4, 0), App.Vector(0, 0, 1), 3.3782), False)
sketch12.addGeometry(Part.Circle(App.Vector(63, -33.4, 0), App.Vector(0, 0, 1), 3.3782), False)
sketch12.addConstraint(Sketcher.Constraint("Equal", 0, 1))
sketch12.addConstraint(Sketcher.Constraint("Equal", 1, 2))
sketch12.addConstraint(Sketcher.Constraint("Equal", 2, 3))
sketch12.addConstraint(Sketcher.Constraint("Horizontal", 0, 3, 1, 3))
sketch12.addConstraint(Sketcher.Constraint("Horizontal", 2, 3, 3, 3))
sketch12.addConstraint(Sketcher.Constraint("Vertical", 1, 3, 2, 3))
sketch12.addConstraint(Sketcher.Constraint("Vertical", 0, 3, 3, 3))
sketch12.addConstraint(Sketcher.Constraint("DistanceX", -1, 1, 0, 3, Q("63 mm")))
sketch12.addConstraint(Sketcher.Constraint("DistanceX", -1, 1, 1, 3, Q("317 mm")))
sketch12.addConstraint(Sketcher.Constraint("Diameter", 0, Q("6.7564 mm")))
sketch12.addConstraint(Sketcher.Constraint("DistanceY", 0, 3, -1, 1, Q("109.6 mm")))
sketch12.addConstraint(Sketcher.Constraint("DistanceY", 2, 3, -1, 1, Q("33.4 mm")))
doc.recompute()
hole6 = body.newObject("PartDesign::Hole", "Hole005")
hole6.Profile = sketch12
hole6.ThreadType = "None"
hole6.Diameter = 6.7564
hole6.DepthType = "Dimension"
hole6.Depth = 20
hole6.DrillPoint = "Angled"
hole6.DrillPointAngle = 118
hole6.HoleCutType = "Counterbore"
hole6.HoleCutDiameter = 14.2875
hole6.HoleCutDepth = 4.191
hole6.Reversed = True

doc.recompute()
